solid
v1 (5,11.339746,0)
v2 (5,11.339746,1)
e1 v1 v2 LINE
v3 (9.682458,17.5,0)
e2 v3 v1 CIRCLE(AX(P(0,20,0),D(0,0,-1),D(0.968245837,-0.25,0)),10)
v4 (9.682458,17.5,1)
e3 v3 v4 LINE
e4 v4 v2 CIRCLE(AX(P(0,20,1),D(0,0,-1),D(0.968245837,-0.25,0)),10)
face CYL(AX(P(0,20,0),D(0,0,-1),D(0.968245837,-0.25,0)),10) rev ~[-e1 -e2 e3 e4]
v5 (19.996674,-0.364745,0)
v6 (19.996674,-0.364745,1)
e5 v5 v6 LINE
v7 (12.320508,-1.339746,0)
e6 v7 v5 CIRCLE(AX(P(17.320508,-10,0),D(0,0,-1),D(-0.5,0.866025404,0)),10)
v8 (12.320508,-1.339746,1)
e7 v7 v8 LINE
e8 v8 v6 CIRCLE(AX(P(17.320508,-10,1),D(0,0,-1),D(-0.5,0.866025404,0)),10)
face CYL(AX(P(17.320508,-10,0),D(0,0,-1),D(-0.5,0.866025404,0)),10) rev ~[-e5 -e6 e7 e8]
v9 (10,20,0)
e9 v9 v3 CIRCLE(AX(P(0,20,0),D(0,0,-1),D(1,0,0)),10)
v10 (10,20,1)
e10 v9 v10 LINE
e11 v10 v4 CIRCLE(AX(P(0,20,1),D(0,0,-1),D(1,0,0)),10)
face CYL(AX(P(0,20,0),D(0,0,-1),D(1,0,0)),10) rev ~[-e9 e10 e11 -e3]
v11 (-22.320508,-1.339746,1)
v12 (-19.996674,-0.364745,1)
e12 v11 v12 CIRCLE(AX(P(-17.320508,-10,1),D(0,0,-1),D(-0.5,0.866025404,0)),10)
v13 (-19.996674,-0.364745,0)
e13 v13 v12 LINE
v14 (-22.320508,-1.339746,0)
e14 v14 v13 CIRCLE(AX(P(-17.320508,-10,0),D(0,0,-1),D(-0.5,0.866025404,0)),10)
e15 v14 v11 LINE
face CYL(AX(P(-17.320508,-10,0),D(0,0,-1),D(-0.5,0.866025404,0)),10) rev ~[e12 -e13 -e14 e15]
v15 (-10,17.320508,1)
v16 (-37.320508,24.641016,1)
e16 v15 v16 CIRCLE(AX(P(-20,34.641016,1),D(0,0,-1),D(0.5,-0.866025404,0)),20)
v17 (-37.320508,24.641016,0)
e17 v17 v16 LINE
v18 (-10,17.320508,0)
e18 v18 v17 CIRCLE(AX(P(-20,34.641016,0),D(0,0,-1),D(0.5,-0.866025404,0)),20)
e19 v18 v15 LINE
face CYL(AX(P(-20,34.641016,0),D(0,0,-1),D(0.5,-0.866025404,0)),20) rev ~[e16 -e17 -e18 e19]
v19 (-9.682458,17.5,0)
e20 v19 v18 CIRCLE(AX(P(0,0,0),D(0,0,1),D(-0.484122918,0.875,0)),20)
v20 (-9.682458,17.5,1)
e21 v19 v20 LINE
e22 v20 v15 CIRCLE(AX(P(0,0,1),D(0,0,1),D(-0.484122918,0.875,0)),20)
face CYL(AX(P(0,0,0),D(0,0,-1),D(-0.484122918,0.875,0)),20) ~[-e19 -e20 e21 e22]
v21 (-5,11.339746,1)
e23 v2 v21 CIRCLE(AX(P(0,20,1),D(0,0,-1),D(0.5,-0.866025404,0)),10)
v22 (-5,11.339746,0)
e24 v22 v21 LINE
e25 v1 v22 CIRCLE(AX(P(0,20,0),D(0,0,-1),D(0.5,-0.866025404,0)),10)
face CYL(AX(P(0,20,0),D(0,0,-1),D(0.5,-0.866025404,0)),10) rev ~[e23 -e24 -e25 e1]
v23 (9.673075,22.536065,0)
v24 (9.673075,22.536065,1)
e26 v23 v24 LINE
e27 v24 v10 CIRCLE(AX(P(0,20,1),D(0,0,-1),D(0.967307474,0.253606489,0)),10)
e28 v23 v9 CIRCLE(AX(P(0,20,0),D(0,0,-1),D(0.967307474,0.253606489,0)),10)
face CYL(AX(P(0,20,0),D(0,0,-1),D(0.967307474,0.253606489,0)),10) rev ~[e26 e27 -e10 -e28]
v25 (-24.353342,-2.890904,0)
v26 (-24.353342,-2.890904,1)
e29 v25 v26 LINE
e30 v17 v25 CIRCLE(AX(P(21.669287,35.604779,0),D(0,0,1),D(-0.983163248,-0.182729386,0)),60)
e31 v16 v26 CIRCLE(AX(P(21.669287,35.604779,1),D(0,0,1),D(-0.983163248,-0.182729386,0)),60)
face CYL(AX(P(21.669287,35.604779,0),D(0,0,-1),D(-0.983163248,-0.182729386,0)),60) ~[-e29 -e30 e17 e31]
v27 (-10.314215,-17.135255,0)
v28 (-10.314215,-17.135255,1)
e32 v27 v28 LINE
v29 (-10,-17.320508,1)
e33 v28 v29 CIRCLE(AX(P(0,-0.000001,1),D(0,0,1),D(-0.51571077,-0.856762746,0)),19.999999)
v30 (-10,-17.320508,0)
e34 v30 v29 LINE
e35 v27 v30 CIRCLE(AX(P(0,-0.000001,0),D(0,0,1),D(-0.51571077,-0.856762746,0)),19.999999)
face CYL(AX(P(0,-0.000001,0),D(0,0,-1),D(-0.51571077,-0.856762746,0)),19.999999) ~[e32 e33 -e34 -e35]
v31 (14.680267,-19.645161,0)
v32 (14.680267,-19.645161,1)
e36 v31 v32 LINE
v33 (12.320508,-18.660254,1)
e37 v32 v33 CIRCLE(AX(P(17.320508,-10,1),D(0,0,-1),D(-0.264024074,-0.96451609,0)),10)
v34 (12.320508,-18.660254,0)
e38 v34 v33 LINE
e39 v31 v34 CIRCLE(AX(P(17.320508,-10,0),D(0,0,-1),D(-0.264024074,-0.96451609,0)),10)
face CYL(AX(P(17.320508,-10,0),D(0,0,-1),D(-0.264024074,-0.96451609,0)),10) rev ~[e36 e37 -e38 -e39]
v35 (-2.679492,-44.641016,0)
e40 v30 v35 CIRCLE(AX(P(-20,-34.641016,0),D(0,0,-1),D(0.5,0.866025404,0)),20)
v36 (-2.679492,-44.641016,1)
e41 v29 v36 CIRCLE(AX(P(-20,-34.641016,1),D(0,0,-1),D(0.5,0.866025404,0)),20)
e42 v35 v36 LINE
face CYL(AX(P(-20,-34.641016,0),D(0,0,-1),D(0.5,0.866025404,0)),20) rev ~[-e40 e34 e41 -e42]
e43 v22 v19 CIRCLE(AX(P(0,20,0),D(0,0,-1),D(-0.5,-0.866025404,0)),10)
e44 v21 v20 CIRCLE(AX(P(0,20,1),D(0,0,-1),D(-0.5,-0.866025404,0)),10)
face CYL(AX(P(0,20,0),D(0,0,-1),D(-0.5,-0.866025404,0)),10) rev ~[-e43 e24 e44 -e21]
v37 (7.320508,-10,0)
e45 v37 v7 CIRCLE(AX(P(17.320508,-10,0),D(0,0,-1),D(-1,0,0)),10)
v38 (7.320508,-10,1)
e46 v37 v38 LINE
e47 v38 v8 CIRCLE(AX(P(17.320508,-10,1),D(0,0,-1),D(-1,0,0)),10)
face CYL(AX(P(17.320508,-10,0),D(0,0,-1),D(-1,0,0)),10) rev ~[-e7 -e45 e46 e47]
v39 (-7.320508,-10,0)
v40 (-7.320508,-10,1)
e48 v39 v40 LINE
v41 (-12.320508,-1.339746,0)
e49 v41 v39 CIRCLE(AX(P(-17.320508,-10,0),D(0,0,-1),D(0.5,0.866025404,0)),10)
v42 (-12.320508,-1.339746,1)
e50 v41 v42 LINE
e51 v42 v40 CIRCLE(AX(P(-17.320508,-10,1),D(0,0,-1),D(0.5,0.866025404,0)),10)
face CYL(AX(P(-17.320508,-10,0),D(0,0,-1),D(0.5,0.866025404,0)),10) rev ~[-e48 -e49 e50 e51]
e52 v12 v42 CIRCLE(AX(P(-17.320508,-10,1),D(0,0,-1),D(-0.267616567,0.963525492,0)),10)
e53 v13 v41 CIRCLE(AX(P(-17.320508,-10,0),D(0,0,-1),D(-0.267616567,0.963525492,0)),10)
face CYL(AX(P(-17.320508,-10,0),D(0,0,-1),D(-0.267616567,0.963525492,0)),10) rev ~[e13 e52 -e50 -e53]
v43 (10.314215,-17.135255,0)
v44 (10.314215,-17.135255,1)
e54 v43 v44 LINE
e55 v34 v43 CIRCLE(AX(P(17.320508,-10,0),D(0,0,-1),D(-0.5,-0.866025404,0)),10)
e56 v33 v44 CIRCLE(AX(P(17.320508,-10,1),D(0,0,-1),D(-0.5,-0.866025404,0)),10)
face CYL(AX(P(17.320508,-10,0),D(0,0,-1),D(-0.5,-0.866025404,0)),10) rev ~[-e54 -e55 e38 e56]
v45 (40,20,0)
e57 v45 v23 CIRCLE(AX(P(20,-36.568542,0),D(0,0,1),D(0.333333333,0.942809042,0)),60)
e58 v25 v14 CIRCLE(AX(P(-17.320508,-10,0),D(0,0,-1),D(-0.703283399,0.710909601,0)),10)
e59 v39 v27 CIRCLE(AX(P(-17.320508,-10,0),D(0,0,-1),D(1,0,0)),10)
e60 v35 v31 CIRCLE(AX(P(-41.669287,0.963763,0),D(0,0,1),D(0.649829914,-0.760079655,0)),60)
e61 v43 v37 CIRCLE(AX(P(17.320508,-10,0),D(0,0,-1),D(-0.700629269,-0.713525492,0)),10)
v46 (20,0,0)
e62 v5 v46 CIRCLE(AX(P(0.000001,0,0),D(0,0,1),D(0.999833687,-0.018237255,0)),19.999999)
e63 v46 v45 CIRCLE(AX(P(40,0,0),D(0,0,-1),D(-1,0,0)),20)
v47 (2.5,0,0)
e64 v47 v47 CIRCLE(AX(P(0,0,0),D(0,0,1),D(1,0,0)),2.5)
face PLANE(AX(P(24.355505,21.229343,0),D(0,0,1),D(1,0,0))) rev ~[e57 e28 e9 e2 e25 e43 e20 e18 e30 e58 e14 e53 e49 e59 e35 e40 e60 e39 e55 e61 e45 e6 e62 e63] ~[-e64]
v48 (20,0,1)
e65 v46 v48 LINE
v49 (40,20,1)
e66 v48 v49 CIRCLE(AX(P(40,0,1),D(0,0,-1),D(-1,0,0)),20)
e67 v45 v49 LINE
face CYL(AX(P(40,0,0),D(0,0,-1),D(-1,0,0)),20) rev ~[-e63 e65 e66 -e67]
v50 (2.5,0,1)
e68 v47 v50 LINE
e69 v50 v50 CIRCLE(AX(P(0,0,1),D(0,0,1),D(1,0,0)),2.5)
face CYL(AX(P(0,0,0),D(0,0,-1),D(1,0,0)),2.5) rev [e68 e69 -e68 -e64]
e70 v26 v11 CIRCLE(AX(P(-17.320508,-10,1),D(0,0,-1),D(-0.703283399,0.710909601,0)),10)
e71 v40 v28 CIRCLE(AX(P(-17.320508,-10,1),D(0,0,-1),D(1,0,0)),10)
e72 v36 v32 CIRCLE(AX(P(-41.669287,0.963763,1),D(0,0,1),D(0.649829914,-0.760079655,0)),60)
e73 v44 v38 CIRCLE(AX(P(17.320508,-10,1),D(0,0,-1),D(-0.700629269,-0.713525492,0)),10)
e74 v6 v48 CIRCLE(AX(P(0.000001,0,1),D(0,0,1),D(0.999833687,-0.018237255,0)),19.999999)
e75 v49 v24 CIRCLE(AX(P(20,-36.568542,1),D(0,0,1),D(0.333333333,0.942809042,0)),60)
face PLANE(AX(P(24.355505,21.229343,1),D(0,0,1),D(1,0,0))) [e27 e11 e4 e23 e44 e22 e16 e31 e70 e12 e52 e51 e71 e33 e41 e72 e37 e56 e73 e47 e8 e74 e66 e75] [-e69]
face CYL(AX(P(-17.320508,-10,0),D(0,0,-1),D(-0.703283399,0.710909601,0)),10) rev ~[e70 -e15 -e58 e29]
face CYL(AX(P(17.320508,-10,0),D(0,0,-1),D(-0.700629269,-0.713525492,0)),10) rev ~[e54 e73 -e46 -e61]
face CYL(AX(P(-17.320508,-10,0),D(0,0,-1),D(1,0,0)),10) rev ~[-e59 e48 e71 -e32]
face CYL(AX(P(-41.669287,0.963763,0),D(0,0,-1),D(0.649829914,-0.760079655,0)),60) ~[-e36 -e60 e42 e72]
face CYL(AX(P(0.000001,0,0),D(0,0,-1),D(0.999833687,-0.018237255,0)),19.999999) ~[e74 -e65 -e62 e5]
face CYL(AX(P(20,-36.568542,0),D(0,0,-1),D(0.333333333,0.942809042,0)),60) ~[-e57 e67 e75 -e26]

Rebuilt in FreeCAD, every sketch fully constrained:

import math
import FreeCAD as App
import Part
import Sketcher
from FreeCAD import Vector

doc = App.newDocument("Part")
body = doc.addObject("PartDesign::Body", "Body")

sketch1 = body.newObject("Sketcher::SketchObject", "Sketch")
sketch1.AttachmentSupport = (doc.getObject("XY_Plane"), [""])
sketch1.MapMode = "FlatFace"
sketch1.addGeometry(Part.ArcOfCircle(Part.Circle(Vector(20, -36.57, 0), Vector(0, 0, 1), 60), math.radians(71), math.radians(100)), False)
sketch1.addGeometry(Part.ArcOfCircle(Part.Circle(Vector(0, 20, 0), Vector(0, 0, 1), 10), math.radians(0), math.radians(14.69)), False)
sketch1.addGeometry(Part.ArcOfCircle(Part.Circle(Vector(0, 20, 0), Vector(0, 0, 1), 10), math.radians(-14.48), math.radians(0)), False)
sketch1.addGeometry(Part.ArcOfCircle(Part.Circle(Vector(0, 20, 0), Vector(0, 0, 1), 10), math.radians(-60), math.radians(-14)), False)
sketch1.addGeometry(Part.ArcOfCircle(Part.Circle(Vector(0, 20, 0), Vector(0, 0, 1), 10), math.radians(-120), math.radians(-60)), False)
sketch1.addGeometry(Part.ArcOfCircle(Part.Circle(Vector(0, 20, 0), Vector(0, 0, 1), 10), math.radians(-166), math.radians(-120)), False)
sketch1.addGeometry(Part.ArcOfCircle(Part.Circle(Vector(0, 0, 0), Vector(0, 0, 1), 20), math.radians(118.96), math.radians(120)), False)
sketch1.addGeometry(Part.ArcOfCircle(Part.Circle(Vector(-20, 34.64, 0), Vector(0, 0, 1), 20), math.radians(-150), math.radians(-60)), False)
sketch1.addGeometry(Part.ArcOfCircle(Part.Circle(Vector(21.67, 35.6, 0), Vector(0, 0, 1), 60), math.radians(-169), math.radians(-140)), False)
sketch1.addGeometry(Part.ArcOfCircle(Part.Circle(Vector(-17.32, -10, 0), Vector(0, 0, 1), 10), math.radians(120), math.radians(134.69)), False)
sketch1.addGeometry(Part.ArcOfCircle(Part.Circle(Vector(-17.32, -10, 0), Vector(0, 0, 1), 10), math.radians(105.52), math.radians(120)), False)
sketch1.addGeometry(Part.ArcOfCircle(Part.Circle(Vector(-17.32, -10, 0), Vector(0, 0, 1), 10), math.radians(60), math.radians(106)), False)
sketch1.addGeometry(Part.ArcOfCircle(Part.Circle(Vector(-17.32, -10, 0), Vector(0, 0, 1), 10), math.radians(0), math.radians(60)), False)
sketch1.addGeometry(Part.ArcOfCircle(Part.Circle(Vector(-17.32, -10, 0), Vector(0, 0, 1), 10), math.radians(-46), math.radians(0)), False)
sketch1.addGeometry(Part.ArcOfCircle(Part.Circle(Vector(0, 0, 0), Vector(0, 0, 1), 20), math.radians(-121.04), math.radians(-120)), False)
sketch1.addGeometry(Part.ArcOfCircle(Part.Circle(Vector(-20, -34.64, 0), Vector(0, 0, 1), 20), math.radians(-30), math.radians(60)), False)
sketch1.addGeometry(Part.ArcOfCircle(Part.Circle(Vector(-41.67, 0.96, 0), Vector(0, 0, 1), 60), math.radians(-49), math.radians(-20)), False)
sketch1.addGeometry(Part.ArcOfCircle(Part.Circle(Vector(17.32, -10, 0), Vector(0, 0, 1), 10), math.radians(-120), math.radians(-105.31)), False)
sketch1.addGeometry(Part.ArcOfCircle(Part.Circle(Vector(17.32, -10, 0), Vector(0, 0, 1), 10), math.radians(-134.48), math.radians(-120)), False)
sketch1.addGeometry(Part.ArcOfCircle(Part.Circle(Vector(17.32, -10, 0), Vector(0, 0, 1), 10), math.radians(180), math.radians(226)), False)
sketch1.addGeometry(Part.ArcOfCircle(Part.Circle(Vector(17.32, -10, 0), Vector(0, 0, 1), 10), math.radians(120), math.radians(180)), False)
sketch1.addGeometry(Part.ArcOfCircle(Part.Circle(Vector(17.32, -10, 0), Vector(0, 0, 1), 10), math.radians(74), math.radians(120)), False)
sketch1.addGeometry(Part.ArcOfCircle(Part.Circle(Vector(0, 0, 0), Vector(0, 0, 1), 20), math.radians(-1.04), math.radians(0)), False)
sketch1.addGeometry(Part.ArcOfCircle(Part.Circle(Vector(40, 0, 0), Vector(0, 0, 1), 20), math.radians(90), math.radians(180)), False)
sketch1.addGeometry(Part.Circle(Vector(0, 0, 0), Vector(0, 0, 1), 2.5), False)
sketch1.addConstraint(Sketcher.Constraint("Coincident", 0, 2, 1, 2))
sketch1.addConstraint(Sketcher.Constraint("Tangent", 1, 1, 2, 2))
sketch1.addConstraint(Sketcher.Constraint("Tangent", 2, 1, 3, 2))
sketch1.addConstraint(Sketcher.Constraint("Tangent", 3, 1, 4, 2))
sketch1.addConstraint(Sketcher.Constraint("Tangent", 4, 1, 5, 2))
sketch1.addConstraint(Sketcher.Constraint("Coincident", 5, 1, 6, 1))
sketch1.addConstraint(Sketcher.Constraint("Tangent", 6, 2, 7, 2))
sketch1.addConstraint(Sketcher.Constraint("Coincident", 7, 1, 8, 1))
sketch1.addConstraint(Sketcher.Constraint("Coincident", 8, 2, 9, 2))
sketch1.addConstraint(Sketcher.Constraint("Tangent", 9, 1, 10, 2))
sketch1.addConstraint(Sketcher.Constraint("Tangent", 10, 1, 11, 2))
sketch1.addConstraint(Sketcher.Constraint("Tangent", 11, 1, 12, 2))
sketch1.addConstraint(Sketcher.Constraint("Tangent", 12, 1, 13, 2))
sketch1.addConstraint(Sketcher.Constraint("Coincident", 13, 1, 14, 1))
sketch1.addConstraint(Sketcher.Constraint("Tangent", 14, 2, 15, 2))
sketch1.addConstraint(Sketcher.Constraint("Coincident", 15, 1, 16, 1))
sketch1.addConstraint(Sketcher.Constraint("Coincident", 16, 2, 17, 2))
sketch1.addConstraint(Sketcher.Constraint("Tangent", 17, 1, 18, 2))
sketch1.addConstraint(Sketcher.Constraint("Tangent", 18, 1, 19, 2))
sketch1.addConstraint(Sketcher.Constraint("Tangent", 19, 1, 20, 2))
sketch1.addConstraint(Sketcher.Constraint("Tangent", 20, 1, 21, 2))
sketch1.addConstraint(Sketcher.Constraint("Coincident", 21, 1, 22, 1))
sketch1.addConstraint(Sketcher.Constraint("Tangent", 22, 2, 23, 2))
sketch1.addConstraint(Sketcher.Constraint("Coincident", 23, 1, 0, 1))
sketch1.addConstraint(Sketcher.Constraint("Coincident", 6, 3, -1, 1))
sketch1.addConstraint(Sketcher.Constraint("Coincident", 14, 3, -1, 1))
sketch1.addConstraint(Sketcher.Constraint("Coincident", 22, 3, -1, 1))
sketch1.addConstraint(Sketcher.Constraint("Coincident", 24, 3, -1, 1))
sketch1.addConstraint(Sketcher.Constraint("Coincident", 3, 3, 1, 3))
sketch1.addConstraint(Sketcher.Constraint("Coincident", 5, 3, 1, 3))
sketch1.addConstraint(Sketcher.Constraint("Coincident", 11, 3, 9, 3))
sketch1.addConstraint(Sketcher.Constraint("Coincident", 13, 3, 9, 3))
sketch1.addConstraint(Sketcher.Constraint("Coincident", 19, 3, 17, 3))
sketch1.addConstraint(Sketcher.Constraint("Coincident", 21, 3, 17, 3))
sketch1.addConstraint(Sketcher.Constraint("Equal", 6, 7))
sketch1.addConstraint(Sketcher.Constraint("Equal", 0, 8))
sketch1.addConstraint(Sketcher.Constraint("Equal", 5, 9))
sketch1.addConstraint(Sketcher.Constraint("Equal", 7, 14))
sketch1.addConstraint(Sketcher.Constraint("Equal", 14, 15))
sketch1.addConstraint(Sketcher.Constraint("Equal", 8, 16))
sketch1.addConstraint(Sketcher.Constraint("Equal", 13, 17))
sketch1.addConstraint(Sketcher.Constraint("Equal", 15, 22))
sketch1.addConstraint(Sketcher.Constraint("Equal", 22, 23))
sketch1.addConstraint(Sketcher.Constraint("Symmetric", 9, 3, 17, 3, -2))
sketch1.addConstraint(Sketcher.Constraint("Symmetric", 3, 1, 4, 1, -2))
sketch1.addConstraint(Sketcher.Constraint("PointOnObject", 23, 3, -1))
sketch1.addConstraint(Sketcher.Constraint("Horizontal", 5, 3, 1, 1))
sketch1.addConstraint(Sketcher.Constraint("Horizontal", 2, 1, 5, 1))
sketch1.addConstraint(Sketcher.Constraint("Horizontal", 9, 1, 11, 1))
sketch1.addConstraint(Sketcher.Constraint("Horizontal", 21, 3, 12, 1))
sketch1.addConstraint(Sketcher.Constraint("Horizontal", 13, 1, 18, 1))
sketch1.addConstraint(Sketcher.Constraint("Horizontal", 12, 1, 19, 1))
sketch1.addConstraint(Sketcher.Constraint("Horizontal", 11, 1, 20, 1))
sketch1.addConstraint(Sketcher.Constraint("Horizontal", 10, 1, 21, 1))
sketch1.addConstraint(Sketcher.Constraint("Horizontal", 1, 1, 23, 1))
sketch1.addConstraint(Sketcher.Constraint("Vertical", 7, 3, 15, 3))
sketch1.addConstraint(Sketcher.Constraint("Vertical", 17, 1, 20, 1))
sketch1.addConstraint(Sketcher.Constraint("Vertical", 0, 3, 22, 2))
sketch1.addConstraint(Sketcher.Constraint("Diameter", 24, 5.0))
sketch1.addConstraint(Sketcher.Constraint("Radius", 0, 60.0))
sketch1.addConstraint(Sketcher.Constraint("Radius", 1, 10.0))
sketch1.addConstraint(Sketcher.Constraint("Radius", 6, 20.0))
sketch1.addConstraint(Sketcher.Constraint("DistanceX", 7, 3, -1, 1, 20.0))
sketch1.addConstraint(Sketcher.Constraint("DistanceY", 9, 3, -1, 1, 10.0))
sketch1.addConstraint(Sketcher.Constraint("DistanceX", -1, 1, 3, 1, 5.0))
sketch1.addConstraint(Sketcher.Constraint("DistanceX", -1, 1, 23, 1, 40.0))
sketch1.addConstraint(Sketcher.Constraint("DistanceY", 7, 1, 7, 3, 10.0))
sketch1.addConstraint(Sketcher.Constraint("DistanceX", 9, 1, 10, 3, 5.0))
sketch1.addConstraint(Sketcher.Constraint("DistanceY", 15, 1, 15, 3, 10.0))
sketch1.addConstraint(Sketcher.Constraint("DistanceY", 9, 1, 10, 1, 0.975001))
sketch1.addConstraint(Sketcher.Constraint("DistanceY", -1, 1, 8, 3, 35.604779))
sketch1.addConstraint(Sketcher.Constraint("DistanceY", 16, 2, -1, 1, 19.645161))
pad1 = body.newObject("PartDesign::Pad", "Pad")
pad1.Profile = sketch1
pad1.Length = 1

doc.recompute()
